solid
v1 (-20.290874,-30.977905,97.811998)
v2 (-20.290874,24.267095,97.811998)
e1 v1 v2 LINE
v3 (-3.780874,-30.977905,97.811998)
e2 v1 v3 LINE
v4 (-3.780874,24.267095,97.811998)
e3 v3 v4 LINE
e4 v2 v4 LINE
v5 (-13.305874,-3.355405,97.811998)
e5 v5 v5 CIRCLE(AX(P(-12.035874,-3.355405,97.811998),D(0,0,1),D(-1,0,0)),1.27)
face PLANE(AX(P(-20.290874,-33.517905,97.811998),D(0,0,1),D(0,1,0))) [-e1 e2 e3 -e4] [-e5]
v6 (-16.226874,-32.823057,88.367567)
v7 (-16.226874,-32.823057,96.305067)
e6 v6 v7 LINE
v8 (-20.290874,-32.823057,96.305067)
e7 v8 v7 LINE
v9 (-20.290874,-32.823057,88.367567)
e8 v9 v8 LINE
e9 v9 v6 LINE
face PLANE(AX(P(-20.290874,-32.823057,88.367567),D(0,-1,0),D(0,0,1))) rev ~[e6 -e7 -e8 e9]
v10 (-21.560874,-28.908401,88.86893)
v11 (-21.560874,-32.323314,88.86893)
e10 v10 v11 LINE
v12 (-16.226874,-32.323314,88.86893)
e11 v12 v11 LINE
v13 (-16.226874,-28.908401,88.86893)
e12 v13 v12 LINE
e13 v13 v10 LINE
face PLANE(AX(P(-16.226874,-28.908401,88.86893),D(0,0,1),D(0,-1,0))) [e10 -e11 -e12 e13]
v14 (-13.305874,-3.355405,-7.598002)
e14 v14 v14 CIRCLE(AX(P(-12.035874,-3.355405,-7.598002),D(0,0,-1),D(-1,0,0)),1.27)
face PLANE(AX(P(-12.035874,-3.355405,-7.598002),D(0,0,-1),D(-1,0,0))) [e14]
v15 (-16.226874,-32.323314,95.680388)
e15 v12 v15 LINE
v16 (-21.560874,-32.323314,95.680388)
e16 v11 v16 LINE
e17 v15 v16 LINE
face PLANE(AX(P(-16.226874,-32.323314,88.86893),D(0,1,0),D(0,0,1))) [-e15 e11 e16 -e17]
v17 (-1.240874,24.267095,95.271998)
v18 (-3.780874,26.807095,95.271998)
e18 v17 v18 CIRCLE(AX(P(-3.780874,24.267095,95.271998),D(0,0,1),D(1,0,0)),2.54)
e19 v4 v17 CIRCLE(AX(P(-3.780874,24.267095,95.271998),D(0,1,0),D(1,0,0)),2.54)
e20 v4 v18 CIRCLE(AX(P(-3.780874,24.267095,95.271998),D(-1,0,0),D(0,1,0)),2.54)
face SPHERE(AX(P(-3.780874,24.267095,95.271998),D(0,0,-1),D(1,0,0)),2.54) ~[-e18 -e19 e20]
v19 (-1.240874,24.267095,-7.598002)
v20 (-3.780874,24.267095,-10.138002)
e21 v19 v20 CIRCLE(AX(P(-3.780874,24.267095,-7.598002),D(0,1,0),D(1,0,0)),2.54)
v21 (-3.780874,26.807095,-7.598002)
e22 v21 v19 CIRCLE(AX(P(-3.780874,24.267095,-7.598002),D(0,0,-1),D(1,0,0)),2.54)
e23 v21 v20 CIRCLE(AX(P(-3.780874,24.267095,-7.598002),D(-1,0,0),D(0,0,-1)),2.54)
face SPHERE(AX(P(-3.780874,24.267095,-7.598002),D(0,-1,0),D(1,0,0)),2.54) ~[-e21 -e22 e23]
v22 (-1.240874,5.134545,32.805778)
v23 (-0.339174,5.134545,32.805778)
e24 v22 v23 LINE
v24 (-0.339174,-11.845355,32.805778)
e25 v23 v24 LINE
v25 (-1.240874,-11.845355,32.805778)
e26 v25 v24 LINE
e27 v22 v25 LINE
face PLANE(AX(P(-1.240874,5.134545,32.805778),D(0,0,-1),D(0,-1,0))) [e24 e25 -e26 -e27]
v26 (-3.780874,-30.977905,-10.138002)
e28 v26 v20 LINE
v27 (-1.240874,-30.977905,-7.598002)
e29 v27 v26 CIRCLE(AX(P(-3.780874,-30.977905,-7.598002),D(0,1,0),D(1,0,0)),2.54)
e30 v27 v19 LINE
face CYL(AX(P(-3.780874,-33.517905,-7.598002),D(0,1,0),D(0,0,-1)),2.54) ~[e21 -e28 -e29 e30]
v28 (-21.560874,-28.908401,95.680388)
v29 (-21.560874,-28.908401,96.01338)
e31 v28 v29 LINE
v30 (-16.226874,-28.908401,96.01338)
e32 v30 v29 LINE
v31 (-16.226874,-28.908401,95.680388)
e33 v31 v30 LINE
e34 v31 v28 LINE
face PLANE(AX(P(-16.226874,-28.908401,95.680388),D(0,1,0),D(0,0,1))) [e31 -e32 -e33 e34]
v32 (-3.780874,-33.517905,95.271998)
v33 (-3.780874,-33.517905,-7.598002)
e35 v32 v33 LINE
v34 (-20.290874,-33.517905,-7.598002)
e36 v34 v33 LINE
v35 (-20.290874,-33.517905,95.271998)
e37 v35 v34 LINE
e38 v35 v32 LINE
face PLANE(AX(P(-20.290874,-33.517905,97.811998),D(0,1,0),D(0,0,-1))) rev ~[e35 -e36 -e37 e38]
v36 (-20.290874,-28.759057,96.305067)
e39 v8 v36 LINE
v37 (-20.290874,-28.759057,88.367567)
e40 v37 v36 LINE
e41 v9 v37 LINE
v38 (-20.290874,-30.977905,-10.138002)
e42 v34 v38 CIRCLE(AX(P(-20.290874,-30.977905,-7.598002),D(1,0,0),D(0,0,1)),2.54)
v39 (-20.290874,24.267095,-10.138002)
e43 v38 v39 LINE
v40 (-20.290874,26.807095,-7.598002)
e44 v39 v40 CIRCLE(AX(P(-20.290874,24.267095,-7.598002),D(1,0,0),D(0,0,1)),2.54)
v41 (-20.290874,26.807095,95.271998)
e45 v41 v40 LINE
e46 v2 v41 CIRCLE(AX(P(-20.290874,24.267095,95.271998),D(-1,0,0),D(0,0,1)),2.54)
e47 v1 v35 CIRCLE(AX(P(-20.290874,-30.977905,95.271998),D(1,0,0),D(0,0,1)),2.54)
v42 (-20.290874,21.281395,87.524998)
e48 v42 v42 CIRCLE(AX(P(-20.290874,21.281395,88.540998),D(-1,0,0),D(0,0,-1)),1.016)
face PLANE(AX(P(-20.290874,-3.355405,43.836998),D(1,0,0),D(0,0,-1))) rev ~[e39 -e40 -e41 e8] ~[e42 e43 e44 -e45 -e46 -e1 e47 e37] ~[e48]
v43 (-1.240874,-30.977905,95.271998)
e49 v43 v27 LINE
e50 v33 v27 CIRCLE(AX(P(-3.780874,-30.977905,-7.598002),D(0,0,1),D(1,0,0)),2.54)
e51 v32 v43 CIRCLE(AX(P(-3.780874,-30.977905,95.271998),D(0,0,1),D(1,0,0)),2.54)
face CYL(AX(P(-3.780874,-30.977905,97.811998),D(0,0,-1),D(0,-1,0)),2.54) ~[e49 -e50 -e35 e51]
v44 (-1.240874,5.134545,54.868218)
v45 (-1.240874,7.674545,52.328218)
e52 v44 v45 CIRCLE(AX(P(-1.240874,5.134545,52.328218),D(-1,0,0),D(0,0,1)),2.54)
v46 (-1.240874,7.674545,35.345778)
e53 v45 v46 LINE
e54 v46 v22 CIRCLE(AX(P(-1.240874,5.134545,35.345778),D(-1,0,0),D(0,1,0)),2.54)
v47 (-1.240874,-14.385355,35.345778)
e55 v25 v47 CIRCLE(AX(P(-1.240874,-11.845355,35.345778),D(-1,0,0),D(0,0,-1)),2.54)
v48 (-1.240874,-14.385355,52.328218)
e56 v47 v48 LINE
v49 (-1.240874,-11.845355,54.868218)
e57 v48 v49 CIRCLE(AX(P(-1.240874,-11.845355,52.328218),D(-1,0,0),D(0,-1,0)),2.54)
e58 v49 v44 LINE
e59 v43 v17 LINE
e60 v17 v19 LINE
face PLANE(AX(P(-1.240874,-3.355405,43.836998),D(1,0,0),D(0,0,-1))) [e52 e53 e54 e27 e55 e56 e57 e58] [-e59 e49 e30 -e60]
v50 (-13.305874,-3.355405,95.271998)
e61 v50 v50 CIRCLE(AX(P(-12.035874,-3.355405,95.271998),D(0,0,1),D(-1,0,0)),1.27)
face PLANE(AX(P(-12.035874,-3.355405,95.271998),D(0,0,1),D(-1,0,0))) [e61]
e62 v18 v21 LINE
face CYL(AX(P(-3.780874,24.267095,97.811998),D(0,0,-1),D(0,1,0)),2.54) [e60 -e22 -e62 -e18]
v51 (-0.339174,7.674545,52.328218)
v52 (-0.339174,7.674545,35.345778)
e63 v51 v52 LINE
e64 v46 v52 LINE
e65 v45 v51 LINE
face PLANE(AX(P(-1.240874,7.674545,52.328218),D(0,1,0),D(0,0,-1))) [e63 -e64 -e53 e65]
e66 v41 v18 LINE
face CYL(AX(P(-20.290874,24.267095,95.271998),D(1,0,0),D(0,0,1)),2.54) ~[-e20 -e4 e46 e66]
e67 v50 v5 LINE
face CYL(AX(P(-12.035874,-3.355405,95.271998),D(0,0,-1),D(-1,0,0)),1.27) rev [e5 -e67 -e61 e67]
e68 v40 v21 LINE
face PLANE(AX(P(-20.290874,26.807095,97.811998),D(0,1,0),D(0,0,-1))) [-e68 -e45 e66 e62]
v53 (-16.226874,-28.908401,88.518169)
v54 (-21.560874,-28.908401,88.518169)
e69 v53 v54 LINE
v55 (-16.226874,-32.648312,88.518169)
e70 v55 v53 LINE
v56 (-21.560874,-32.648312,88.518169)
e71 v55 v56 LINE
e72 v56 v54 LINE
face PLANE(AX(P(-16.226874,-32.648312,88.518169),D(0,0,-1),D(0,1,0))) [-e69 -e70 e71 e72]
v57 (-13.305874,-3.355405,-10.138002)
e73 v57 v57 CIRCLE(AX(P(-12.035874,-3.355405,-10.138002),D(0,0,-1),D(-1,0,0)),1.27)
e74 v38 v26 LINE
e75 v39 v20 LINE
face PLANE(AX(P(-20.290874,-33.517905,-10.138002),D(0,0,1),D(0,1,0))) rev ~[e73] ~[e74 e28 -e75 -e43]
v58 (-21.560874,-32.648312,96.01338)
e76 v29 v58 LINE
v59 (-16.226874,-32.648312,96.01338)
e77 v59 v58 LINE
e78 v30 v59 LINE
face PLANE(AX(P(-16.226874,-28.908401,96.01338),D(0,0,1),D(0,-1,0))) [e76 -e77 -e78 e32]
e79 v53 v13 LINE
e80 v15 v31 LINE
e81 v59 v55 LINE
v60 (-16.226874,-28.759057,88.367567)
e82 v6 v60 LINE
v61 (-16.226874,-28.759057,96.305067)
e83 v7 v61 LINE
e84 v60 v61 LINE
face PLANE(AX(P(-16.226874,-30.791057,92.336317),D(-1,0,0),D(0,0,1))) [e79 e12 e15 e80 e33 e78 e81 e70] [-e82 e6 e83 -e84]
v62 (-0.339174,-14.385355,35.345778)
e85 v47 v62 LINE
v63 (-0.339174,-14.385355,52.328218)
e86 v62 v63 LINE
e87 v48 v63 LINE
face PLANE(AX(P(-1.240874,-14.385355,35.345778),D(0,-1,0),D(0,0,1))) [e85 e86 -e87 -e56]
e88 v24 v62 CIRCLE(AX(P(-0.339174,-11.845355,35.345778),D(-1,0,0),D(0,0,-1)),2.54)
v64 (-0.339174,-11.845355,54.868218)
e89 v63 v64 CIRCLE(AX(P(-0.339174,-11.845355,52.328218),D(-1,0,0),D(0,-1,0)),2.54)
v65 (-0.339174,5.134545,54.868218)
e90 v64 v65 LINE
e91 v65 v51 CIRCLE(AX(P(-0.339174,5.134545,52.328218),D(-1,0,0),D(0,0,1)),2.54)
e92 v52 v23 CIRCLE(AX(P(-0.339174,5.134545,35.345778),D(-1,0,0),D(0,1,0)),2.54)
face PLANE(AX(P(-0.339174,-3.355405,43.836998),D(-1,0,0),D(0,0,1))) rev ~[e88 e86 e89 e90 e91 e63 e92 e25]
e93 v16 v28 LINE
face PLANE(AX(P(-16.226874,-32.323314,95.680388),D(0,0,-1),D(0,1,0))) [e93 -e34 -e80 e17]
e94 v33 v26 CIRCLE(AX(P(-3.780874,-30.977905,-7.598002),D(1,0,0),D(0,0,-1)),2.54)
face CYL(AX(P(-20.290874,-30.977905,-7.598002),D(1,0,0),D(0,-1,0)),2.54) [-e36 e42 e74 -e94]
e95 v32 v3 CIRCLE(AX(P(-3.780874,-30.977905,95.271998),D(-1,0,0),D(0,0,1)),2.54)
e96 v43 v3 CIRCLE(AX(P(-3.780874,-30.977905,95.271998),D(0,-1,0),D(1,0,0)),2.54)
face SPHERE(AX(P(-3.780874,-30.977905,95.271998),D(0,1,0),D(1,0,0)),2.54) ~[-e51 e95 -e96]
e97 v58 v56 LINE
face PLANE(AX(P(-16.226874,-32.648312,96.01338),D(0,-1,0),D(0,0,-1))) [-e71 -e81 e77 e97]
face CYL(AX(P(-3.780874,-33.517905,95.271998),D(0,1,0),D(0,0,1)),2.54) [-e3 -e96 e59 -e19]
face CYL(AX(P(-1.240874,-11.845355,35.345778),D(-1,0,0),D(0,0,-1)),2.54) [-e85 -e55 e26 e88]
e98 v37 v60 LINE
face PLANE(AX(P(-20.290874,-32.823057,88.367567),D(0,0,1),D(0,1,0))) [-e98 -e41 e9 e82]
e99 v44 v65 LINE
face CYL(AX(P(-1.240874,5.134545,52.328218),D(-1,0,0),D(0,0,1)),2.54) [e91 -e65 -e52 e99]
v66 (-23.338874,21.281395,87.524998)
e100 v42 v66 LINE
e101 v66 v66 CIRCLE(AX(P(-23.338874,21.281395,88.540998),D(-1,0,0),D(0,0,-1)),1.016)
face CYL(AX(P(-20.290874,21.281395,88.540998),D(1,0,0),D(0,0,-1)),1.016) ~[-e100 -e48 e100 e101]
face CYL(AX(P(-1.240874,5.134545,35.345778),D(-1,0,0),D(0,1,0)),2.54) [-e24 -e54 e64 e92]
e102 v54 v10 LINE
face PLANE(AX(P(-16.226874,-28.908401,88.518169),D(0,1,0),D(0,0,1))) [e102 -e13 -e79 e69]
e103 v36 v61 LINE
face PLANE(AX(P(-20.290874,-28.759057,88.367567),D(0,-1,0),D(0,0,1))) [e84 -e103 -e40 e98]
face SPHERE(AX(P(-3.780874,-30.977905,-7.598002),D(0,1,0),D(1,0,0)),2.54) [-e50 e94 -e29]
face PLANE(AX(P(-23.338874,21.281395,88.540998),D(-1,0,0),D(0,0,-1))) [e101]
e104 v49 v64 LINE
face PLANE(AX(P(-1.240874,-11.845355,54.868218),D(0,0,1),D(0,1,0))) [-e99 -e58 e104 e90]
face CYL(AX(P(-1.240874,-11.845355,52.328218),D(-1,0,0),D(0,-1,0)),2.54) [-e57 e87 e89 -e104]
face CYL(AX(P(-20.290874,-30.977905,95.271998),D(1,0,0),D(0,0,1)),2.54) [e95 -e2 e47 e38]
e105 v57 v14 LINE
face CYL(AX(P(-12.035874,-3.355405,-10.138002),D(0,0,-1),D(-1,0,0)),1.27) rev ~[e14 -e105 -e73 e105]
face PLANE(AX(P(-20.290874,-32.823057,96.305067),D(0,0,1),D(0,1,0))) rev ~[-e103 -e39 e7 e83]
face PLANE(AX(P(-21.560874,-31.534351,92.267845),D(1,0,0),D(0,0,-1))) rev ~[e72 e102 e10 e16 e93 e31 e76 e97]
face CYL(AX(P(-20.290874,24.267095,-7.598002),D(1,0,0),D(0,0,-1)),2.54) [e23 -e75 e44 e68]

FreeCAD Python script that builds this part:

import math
import FreeCAD as App
import Part
import Sketcher
from FreeCAD import Vector
Q = App.Units.Quantity


def edges_at(feature, points):
    """Names of the edges that pass closest to the given points."""
    edges = feature.Shape.Edges
    near = lambda p: min(range(len(edges)), key=lambda i: edges[i].distToShape(Part.Vertex(*p))[0])
    return sorted({f"Edge{near(p) + 1}" for p in points})


def add_polygon(sketch, points):
    """Adds a closed chain of lines whose ends are joined by coincident constraints."""
    first, n = sketch.GeometryCount, len(points)
    for a, b in zip(points, points[1:] + points[:1]):
        sketch.addGeometry(Part.LineSegment(App.Vector(*a, 0), App.Vector(*b, 0)), False)
    for i in range(n):
        sketch.addConstraint(Sketcher.Constraint("Coincident", first + i, 2, first + (i + 1) % n, 1))

doc = App.newDocument("Part")
params = doc.addObject("Spreadsheet::Sheet", "Params")
for row, (alias, value) in enumerate([
    ("sketch1_height", "4.25 in"),
    ("sketch1_width", "2.375 in"),
    ("pad1_length", "0.75 in"),
    ("fillet_radius", "0.1 in"),
    ("sketch2_diameter", "0.1 in"),
    ("pocket1_length", "0.1 in"),
    ("sketch3_diameter", "0.1 in"),
    ("pocket2_length", "0.1 in"),
    ("sketch4_radius", "0.1 in"),
    ("pad2_length", "0.0355 in"),
    ("sketch5_diameter", "0.08 in"),
    ("pad3_length", "0.12 in"),
    ("sketch6_width", "0.16 in"),
    ("sketch6_height", "0.3125 in"),
    ("pocket3_length", "0.16 in"),
    ("pad4_length", "0.21 in"),
], start=1):
    params.set(f"A{row}", alias)
    params.set(f"B{row}", "=" + value)
    params.setAlias(f"B{row}", alias)

body = doc.addObject("PartDesign::Body", "Body")

# Sketch on YZ plane
sketch1 = doc.addObject("Sketcher::SketchObject", "Sketch")
body.addObject(sketch1)
sketch1.AttachmentSupport = (doc.YZ_Plane, [""])
sketch1.MapMode = "FlatFace"
sketch1.AttachmentOffset = App.Placement(Vector(0, 0, -20.290874), App.Rotation())
add_polygon(sketch1, [(27, 98), (-34, 98), (-34, -10), (27, -10)])  # lines 0-3
sketch1.addConstraint([
    Sketcher.Constraint("Horizontal", 0),
    Sketcher.Constraint("Vertical", 1),
    Sketcher.Constraint("Horizontal", 2),
    Sketcher.Constraint("Vertical", 3),
    Sketcher.Constraint("DistanceY", 1, 2, 1, 1, Q("4.25 in")),
    Sketcher.Constraint("DistanceX", 0, 2, 0, 1, Q("2.375 in")),
    Sketcher.Constraint("DistanceY", -1, 1, 0, 2, Q("97.811998 mm")),
    Sketcher.Constraint("DistanceX", 0, 2, -1, 1, Q("33.517905 mm")),
])
sketch1.setExpression("Constraints[8]", "Params.sketch1_height")
sketch1.setExpression("Constraints[9]", "Params.sketch1_width")
pad1 = doc.addObject("PartDesign::Pad", "Pad")
body.addObject(pad1)
pad1.Profile = sketch1
pad1.setExpression("Length", "Params.pad1_length")
doc.recompute()

fillet = doc.addObject("PartDesign::Fillet", "Fillet")
body.addObject(fillet)
fillet.Base = (pad1, edges_at(pad1, [
    (-1.241, -3.355, -10.138),
    (-1.241, 26.807, 43.837),
    (-1.241, -3.355, 97.812),
    (-1.241, -33.518, 43.837),
    (-10.766, 26.807, 97.812),
    (-10.766, 26.807, -10.138),
    (-10.766, -33.518, -10.138),
    (-10.766, -33.518, 97.812),
]))
fillet.setExpression("Radius", "Params.fillet_radius")

# Sketch on XY plane
sketch2 = doc.addObject("Sketcher::SketchObject", "Sketch001")
body.addObject(sketch2)
sketch2.AttachmentSupport = (doc.XY_Plane, [""])
sketch2.MapMode = "FlatFace"
sketch2.AttachmentOffset = App.Placement(Vector(0, 0, -10.138002), App.Rotation())
sketch2.addGeometry(Part.Circle(Vector(-12, -3.4, 0), Vector(0, 0, 1), 1.3), False)
sketch2.addConstraint([
    Sketcher.Constraint("Diameter", 0, Q("0.1 in")),
    Sketcher.Constraint("DistanceX", 0, 3, -1, 1, Q("12.035874 mm")),
    Sketcher.Constraint("DistanceY", 0, 3, -1, 1, Q("3.355405 mm")),
])
sketch2.setExpression("Constraints[0]", "Params.sketch2_diameter")
pocket1 = doc.addObject("PartDesign::Pocket", "Pocket")
body.addObject(pocket1)
pocket1.Profile = sketch2
pocket1.setExpression("Length", "Params.pocket1_length")
pocket1.Reversed = True

# Sketch on XY plane
sketch3 = doc.addObject("Sketcher::SketchObject", "Sketch002")
body.addObject(sketch3)
sketch3.AttachmentSupport = (doc.XY_Plane, [""])
sketch3.MapMode = "FlatFace"
sketch3.AttachmentOffset = App.Placement(Vector(0, 0, 95.271998), App.Rotation())
sketch3.addGeometry(Part.Circle(Vector(-12, -3.4, 0), Vector(0, 0, 1), 1.3), False)
sketch3.addConstraint([
    Sketcher.Constraint("Diameter", 0, Q("0.1 in")),
    Sketcher.Constraint("DistanceX", 0, 3, -1, 1, Q("12.035874 mm")),
    Sketcher.Constraint("DistanceY", 0, 3, -1, 1, Q("3.355405 mm")),
])
sketch3.setExpression("Constraints[0]", "Params.sketch3_diameter")
pocket2 = doc.addObject("PartDesign::Pocket", "Pocket001")
body.addObject(pocket2)
pocket2.Profile = sketch3
pocket2.setExpression("Length", "Params.pocket2_length")
pocket2.Reversed = True

# Sketch on YZ plane
sketch4 = doc.addObject("Sketcher::SketchObject", "Sketch003")
body.addObject(sketch4)
sketch4.AttachmentSupport = (doc.YZ_Plane, [""])
sketch4.MapMode = "FlatFace"
sketch4.AttachmentOffset = App.Placement(Vector(0, 0, -1.240874), App.Rotation())
sketch4.addGeometry([
    Part.LineSegment(Vector(7.7, 35.3, 0), Vector(7.7, 52.3, 0)),  # 0
    Part.ArcOfCircle(Part.Circle(Vector(5.1, 52.3, 0), Vector(0, 0, 1), 2.5), math.radians(0), math.radians(90)),  # 1
    Part.LineSegment(Vector(5.1, 54.9, 0), Vector(-11.8, 54.9, 0)),  # 2
    Part.ArcOfCircle(Part.Circle(Vector(-11.8, 52.3, 0), Vector(0, 0, 1), 2.5), math.radians(90), math.radians(180)),  # 3
    Part.LineSegment(Vector(-14.4, 52.3, 0), Vector(-14.4, 35.3, 0)),  # 4
    Part.ArcOfCircle(Part.Circle(Vector(-11.8, 35.3, 0), Vector(0, 0, 1), 2.5), math.radians(-180), math.radians(-90)),  # 5
    Part.LineSegment(Vector(-11.8, 32.8, 0), Vector(5.1, 32.8, 0)),  # 6
    Part.ArcOfCircle(Part.Circle(Vector(5.1, 35.3, 0), Vector(0, 0, 1), 2.5), math.radians(-90), math.radians(0)),  # 7
], False)
sketch4.addConstraint([
    Sketcher.Constraint("Tangent", 0, 2, 1, 1),
    Sketcher.Constraint("Tangent", 1, 2, 2, 1),
    Sketcher.Constraint("Tangent", 2, 2, 3, 1),
    Sketcher.Constraint("Tangent", 3, 2, 4, 1),
    Sketcher.Constraint("Tangent", 4, 2, 5, 1),
    Sketcher.Constraint("Tangent", 5, 2, 6, 1),
    Sketcher.Constraint("Tangent", 6, 2, 7, 1),
    Sketcher.Constraint("Tangent", 7, 2, 0, 1),
    Sketcher.Constraint("Vertical", 0),
    Sketcher.Constraint("Horizontal", 2),
    Sketcher.Constraint("Vertical", 4),
    Sketcher.Constraint("Horizontal", 6),
    Sketcher.Constraint("Equal", 1, 3),
    Sketcher.Constraint("Equal", 3, 5),
    Sketcher.Constraint("Equal", 5, 7),
    Sketcher.Constraint("Radius", 1, Q("0.1 in")),
    Sketcher.Constraint("DistanceX", 2, 2, 2, 1, Q("0.6685 in")),
    Sketcher.Constraint("DistanceY", 0, 1, 0, 2, Q("0.6686 in")),
    Sketcher.Constraint("DistanceY", -1, 1, 1, 3, Q("52.328218 mm")),
    Sketcher.Constraint("DistanceX", -1, 1, 1, 3, Q("5.134545 mm")),
])
sketch4.setExpression("Constraints[15]", "Params.sketch4_radius")
pad2 = doc.addObject("PartDesign::Pad", "Pad001")
body.addObject(pad2)
pad2.Profile = sketch4
pad2.setExpression("Length", "Params.pad2_length")

# Sketch on YZ plane
sketch5 = doc.addObject("Sketcher::SketchObject", "Sketch004")
body.addObject(sketch5)
sketch5.AttachmentSupport = (doc.YZ_Plane, [""])
sketch5.MapMode = "FlatFace"
sketch5.AttachmentOffset = App.Placement(Vector(0, 0, -20.290874), App.Rotation())
sketch5.addGeometry(Part.Circle(Vector(21.3, 88.5, 0), Vector(0, 0, 1), 1), False)
sketch5.addConstraint([
    Sketcher.Constraint("Diameter", 0, Q("0.08 in")),
    Sketcher.Constraint("DistanceY", -1, 1, 0, 3, Q("88.540998 mm")),
    Sketcher.Constraint("DistanceX", -1, 1, 0, 3, Q("21.281395 mm")),
])
sketch5.setExpression("Constraints[0]", "Params.sketch5_diameter")
pad3 = doc.addObject("PartDesign::Pad", "Pad002")
body.addObject(pad3)
pad3.Profile = sketch5
pad3.setExpression("Length", "Params.pad3_length")
pad3.Reversed = True

# Sketch on YZ plane
sketch6 = doc.addObject("Sketcher::SketchObject", "Sketch005")
body.addObject(sketch6)
sketch6.AttachmentSupport = (doc.YZ_Plane, [""])
sketch6.MapMode = "FlatFace"
sketch6.AttachmentOffset = App.Placement(Vector(0, 0, -20.290874), App.Rotation())
add_polygon(sketch6, [(-28.8, 88.4), (-32.8, 88.4), (-32.8, 96.3), (-28.8, 96.3)])  # lines 0-3
sketch6.addConstraint([
    Sketcher.Constraint("Horizontal", 0),
    Sketcher.Constraint("Vertical", 1),
    Sketcher.Constraint("Horizontal", 2),
    Sketcher.Constraint("Vertical", 3),
    Sketcher.Constraint("DistanceX", 0, 2, 0, 1, Q("0.16 in")),
    Sketcher.Constraint("DistanceY", 1, 1, 1, 2, Q("0.3125 in")),
    Sketcher.Constraint("DistanceX", 0, 2, -1, 1, Q("32.823057 mm")),
    Sketcher.Constraint("DistanceY", -1, 1, 0, 2, Q("88.367567 mm")),
])
sketch6.setExpression("Constraints[8]", "Params.sketch6_width")
sketch6.setExpression("Constraints[9]", "Params.sketch6_height")
pocket3 = doc.addObject("PartDesign::Pocket", "Pocket002")
body.addObject(pocket3)
pocket3.Profile = sketch6
pocket3.setExpression("Length", "Params.pocket3_length")
pocket3.Reversed = True

# Sketch on YZ plane
sketch7 = doc.addObject("Sketcher::SketchObject", "Sketch006")
body.addObject(sketch7)
sketch7.AttachmentSupport = (doc.YZ_Plane, [""])
sketch7.MapMode = "FlatFace"
sketch7.AttachmentOffset = App.Placement(Vector(0, 0, -16.226874), App.Rotation())
add_polygon(sketch7, [(-32.32, 88.87), (-28.91, 88.87), (-28.91, 88.52), (-32.65, 88.52), (-32.65, 96.01), (-28.91, 96.01), (-28.91, 95.68), (-32.32, 95.68)])  # lines 0-7
sketch7.addConstraint([
    Sketcher.Constraint("Horizontal", 0),
    Sketcher.Constraint("Vertical", 1),
    Sketcher.Constraint("Horizontal", 2),
    Sketcher.Constraint("Vertical", 3),
    Sketcher.Constraint("Horizontal", 4),
    Sketcher.Constraint("Vertical", 5),
    Sketcher.Constraint("Horizontal", 6),
    Sketcher.Constraint("Vertical", 7),
    Sketcher.Constraint("Vertical", 1, 2, 4, 2),
    Sketcher.Constraint("DistanceX", 2, 2, 2, 1, Q("3.739911 mm")),
    Sketcher.Constraint("DistanceY", 1, 2, 1, 1, Q("0.350761 mm")),
    Sketcher.Constraint("DistanceY", 3, 1, 3, 2, Q("7.495211 mm")),
    Sketcher.Constraint("DistanceY", 5, 2, 5, 1, Q("0.332992 mm")),
    Sketcher.Constraint("DistanceX", 0, 2, -1, 1, Q("28.908401 mm")),
    Sketcher.Constraint("DistanceX", 3, 2, 6, 2, Q("0.324999 mm")),
    Sketcher.Constraint("DistanceY", -1, 1, 0, 2, Q("88.86893 mm")),
])
pad4 = doc.addObject("PartDesign::Pad", "Pad003")
body.addObject(pad4)
pad4.Profile = sketch7
pad4.setExpression("Length", "Params.pad4_length")
pad4.Reversed = True

doc.recompute()
